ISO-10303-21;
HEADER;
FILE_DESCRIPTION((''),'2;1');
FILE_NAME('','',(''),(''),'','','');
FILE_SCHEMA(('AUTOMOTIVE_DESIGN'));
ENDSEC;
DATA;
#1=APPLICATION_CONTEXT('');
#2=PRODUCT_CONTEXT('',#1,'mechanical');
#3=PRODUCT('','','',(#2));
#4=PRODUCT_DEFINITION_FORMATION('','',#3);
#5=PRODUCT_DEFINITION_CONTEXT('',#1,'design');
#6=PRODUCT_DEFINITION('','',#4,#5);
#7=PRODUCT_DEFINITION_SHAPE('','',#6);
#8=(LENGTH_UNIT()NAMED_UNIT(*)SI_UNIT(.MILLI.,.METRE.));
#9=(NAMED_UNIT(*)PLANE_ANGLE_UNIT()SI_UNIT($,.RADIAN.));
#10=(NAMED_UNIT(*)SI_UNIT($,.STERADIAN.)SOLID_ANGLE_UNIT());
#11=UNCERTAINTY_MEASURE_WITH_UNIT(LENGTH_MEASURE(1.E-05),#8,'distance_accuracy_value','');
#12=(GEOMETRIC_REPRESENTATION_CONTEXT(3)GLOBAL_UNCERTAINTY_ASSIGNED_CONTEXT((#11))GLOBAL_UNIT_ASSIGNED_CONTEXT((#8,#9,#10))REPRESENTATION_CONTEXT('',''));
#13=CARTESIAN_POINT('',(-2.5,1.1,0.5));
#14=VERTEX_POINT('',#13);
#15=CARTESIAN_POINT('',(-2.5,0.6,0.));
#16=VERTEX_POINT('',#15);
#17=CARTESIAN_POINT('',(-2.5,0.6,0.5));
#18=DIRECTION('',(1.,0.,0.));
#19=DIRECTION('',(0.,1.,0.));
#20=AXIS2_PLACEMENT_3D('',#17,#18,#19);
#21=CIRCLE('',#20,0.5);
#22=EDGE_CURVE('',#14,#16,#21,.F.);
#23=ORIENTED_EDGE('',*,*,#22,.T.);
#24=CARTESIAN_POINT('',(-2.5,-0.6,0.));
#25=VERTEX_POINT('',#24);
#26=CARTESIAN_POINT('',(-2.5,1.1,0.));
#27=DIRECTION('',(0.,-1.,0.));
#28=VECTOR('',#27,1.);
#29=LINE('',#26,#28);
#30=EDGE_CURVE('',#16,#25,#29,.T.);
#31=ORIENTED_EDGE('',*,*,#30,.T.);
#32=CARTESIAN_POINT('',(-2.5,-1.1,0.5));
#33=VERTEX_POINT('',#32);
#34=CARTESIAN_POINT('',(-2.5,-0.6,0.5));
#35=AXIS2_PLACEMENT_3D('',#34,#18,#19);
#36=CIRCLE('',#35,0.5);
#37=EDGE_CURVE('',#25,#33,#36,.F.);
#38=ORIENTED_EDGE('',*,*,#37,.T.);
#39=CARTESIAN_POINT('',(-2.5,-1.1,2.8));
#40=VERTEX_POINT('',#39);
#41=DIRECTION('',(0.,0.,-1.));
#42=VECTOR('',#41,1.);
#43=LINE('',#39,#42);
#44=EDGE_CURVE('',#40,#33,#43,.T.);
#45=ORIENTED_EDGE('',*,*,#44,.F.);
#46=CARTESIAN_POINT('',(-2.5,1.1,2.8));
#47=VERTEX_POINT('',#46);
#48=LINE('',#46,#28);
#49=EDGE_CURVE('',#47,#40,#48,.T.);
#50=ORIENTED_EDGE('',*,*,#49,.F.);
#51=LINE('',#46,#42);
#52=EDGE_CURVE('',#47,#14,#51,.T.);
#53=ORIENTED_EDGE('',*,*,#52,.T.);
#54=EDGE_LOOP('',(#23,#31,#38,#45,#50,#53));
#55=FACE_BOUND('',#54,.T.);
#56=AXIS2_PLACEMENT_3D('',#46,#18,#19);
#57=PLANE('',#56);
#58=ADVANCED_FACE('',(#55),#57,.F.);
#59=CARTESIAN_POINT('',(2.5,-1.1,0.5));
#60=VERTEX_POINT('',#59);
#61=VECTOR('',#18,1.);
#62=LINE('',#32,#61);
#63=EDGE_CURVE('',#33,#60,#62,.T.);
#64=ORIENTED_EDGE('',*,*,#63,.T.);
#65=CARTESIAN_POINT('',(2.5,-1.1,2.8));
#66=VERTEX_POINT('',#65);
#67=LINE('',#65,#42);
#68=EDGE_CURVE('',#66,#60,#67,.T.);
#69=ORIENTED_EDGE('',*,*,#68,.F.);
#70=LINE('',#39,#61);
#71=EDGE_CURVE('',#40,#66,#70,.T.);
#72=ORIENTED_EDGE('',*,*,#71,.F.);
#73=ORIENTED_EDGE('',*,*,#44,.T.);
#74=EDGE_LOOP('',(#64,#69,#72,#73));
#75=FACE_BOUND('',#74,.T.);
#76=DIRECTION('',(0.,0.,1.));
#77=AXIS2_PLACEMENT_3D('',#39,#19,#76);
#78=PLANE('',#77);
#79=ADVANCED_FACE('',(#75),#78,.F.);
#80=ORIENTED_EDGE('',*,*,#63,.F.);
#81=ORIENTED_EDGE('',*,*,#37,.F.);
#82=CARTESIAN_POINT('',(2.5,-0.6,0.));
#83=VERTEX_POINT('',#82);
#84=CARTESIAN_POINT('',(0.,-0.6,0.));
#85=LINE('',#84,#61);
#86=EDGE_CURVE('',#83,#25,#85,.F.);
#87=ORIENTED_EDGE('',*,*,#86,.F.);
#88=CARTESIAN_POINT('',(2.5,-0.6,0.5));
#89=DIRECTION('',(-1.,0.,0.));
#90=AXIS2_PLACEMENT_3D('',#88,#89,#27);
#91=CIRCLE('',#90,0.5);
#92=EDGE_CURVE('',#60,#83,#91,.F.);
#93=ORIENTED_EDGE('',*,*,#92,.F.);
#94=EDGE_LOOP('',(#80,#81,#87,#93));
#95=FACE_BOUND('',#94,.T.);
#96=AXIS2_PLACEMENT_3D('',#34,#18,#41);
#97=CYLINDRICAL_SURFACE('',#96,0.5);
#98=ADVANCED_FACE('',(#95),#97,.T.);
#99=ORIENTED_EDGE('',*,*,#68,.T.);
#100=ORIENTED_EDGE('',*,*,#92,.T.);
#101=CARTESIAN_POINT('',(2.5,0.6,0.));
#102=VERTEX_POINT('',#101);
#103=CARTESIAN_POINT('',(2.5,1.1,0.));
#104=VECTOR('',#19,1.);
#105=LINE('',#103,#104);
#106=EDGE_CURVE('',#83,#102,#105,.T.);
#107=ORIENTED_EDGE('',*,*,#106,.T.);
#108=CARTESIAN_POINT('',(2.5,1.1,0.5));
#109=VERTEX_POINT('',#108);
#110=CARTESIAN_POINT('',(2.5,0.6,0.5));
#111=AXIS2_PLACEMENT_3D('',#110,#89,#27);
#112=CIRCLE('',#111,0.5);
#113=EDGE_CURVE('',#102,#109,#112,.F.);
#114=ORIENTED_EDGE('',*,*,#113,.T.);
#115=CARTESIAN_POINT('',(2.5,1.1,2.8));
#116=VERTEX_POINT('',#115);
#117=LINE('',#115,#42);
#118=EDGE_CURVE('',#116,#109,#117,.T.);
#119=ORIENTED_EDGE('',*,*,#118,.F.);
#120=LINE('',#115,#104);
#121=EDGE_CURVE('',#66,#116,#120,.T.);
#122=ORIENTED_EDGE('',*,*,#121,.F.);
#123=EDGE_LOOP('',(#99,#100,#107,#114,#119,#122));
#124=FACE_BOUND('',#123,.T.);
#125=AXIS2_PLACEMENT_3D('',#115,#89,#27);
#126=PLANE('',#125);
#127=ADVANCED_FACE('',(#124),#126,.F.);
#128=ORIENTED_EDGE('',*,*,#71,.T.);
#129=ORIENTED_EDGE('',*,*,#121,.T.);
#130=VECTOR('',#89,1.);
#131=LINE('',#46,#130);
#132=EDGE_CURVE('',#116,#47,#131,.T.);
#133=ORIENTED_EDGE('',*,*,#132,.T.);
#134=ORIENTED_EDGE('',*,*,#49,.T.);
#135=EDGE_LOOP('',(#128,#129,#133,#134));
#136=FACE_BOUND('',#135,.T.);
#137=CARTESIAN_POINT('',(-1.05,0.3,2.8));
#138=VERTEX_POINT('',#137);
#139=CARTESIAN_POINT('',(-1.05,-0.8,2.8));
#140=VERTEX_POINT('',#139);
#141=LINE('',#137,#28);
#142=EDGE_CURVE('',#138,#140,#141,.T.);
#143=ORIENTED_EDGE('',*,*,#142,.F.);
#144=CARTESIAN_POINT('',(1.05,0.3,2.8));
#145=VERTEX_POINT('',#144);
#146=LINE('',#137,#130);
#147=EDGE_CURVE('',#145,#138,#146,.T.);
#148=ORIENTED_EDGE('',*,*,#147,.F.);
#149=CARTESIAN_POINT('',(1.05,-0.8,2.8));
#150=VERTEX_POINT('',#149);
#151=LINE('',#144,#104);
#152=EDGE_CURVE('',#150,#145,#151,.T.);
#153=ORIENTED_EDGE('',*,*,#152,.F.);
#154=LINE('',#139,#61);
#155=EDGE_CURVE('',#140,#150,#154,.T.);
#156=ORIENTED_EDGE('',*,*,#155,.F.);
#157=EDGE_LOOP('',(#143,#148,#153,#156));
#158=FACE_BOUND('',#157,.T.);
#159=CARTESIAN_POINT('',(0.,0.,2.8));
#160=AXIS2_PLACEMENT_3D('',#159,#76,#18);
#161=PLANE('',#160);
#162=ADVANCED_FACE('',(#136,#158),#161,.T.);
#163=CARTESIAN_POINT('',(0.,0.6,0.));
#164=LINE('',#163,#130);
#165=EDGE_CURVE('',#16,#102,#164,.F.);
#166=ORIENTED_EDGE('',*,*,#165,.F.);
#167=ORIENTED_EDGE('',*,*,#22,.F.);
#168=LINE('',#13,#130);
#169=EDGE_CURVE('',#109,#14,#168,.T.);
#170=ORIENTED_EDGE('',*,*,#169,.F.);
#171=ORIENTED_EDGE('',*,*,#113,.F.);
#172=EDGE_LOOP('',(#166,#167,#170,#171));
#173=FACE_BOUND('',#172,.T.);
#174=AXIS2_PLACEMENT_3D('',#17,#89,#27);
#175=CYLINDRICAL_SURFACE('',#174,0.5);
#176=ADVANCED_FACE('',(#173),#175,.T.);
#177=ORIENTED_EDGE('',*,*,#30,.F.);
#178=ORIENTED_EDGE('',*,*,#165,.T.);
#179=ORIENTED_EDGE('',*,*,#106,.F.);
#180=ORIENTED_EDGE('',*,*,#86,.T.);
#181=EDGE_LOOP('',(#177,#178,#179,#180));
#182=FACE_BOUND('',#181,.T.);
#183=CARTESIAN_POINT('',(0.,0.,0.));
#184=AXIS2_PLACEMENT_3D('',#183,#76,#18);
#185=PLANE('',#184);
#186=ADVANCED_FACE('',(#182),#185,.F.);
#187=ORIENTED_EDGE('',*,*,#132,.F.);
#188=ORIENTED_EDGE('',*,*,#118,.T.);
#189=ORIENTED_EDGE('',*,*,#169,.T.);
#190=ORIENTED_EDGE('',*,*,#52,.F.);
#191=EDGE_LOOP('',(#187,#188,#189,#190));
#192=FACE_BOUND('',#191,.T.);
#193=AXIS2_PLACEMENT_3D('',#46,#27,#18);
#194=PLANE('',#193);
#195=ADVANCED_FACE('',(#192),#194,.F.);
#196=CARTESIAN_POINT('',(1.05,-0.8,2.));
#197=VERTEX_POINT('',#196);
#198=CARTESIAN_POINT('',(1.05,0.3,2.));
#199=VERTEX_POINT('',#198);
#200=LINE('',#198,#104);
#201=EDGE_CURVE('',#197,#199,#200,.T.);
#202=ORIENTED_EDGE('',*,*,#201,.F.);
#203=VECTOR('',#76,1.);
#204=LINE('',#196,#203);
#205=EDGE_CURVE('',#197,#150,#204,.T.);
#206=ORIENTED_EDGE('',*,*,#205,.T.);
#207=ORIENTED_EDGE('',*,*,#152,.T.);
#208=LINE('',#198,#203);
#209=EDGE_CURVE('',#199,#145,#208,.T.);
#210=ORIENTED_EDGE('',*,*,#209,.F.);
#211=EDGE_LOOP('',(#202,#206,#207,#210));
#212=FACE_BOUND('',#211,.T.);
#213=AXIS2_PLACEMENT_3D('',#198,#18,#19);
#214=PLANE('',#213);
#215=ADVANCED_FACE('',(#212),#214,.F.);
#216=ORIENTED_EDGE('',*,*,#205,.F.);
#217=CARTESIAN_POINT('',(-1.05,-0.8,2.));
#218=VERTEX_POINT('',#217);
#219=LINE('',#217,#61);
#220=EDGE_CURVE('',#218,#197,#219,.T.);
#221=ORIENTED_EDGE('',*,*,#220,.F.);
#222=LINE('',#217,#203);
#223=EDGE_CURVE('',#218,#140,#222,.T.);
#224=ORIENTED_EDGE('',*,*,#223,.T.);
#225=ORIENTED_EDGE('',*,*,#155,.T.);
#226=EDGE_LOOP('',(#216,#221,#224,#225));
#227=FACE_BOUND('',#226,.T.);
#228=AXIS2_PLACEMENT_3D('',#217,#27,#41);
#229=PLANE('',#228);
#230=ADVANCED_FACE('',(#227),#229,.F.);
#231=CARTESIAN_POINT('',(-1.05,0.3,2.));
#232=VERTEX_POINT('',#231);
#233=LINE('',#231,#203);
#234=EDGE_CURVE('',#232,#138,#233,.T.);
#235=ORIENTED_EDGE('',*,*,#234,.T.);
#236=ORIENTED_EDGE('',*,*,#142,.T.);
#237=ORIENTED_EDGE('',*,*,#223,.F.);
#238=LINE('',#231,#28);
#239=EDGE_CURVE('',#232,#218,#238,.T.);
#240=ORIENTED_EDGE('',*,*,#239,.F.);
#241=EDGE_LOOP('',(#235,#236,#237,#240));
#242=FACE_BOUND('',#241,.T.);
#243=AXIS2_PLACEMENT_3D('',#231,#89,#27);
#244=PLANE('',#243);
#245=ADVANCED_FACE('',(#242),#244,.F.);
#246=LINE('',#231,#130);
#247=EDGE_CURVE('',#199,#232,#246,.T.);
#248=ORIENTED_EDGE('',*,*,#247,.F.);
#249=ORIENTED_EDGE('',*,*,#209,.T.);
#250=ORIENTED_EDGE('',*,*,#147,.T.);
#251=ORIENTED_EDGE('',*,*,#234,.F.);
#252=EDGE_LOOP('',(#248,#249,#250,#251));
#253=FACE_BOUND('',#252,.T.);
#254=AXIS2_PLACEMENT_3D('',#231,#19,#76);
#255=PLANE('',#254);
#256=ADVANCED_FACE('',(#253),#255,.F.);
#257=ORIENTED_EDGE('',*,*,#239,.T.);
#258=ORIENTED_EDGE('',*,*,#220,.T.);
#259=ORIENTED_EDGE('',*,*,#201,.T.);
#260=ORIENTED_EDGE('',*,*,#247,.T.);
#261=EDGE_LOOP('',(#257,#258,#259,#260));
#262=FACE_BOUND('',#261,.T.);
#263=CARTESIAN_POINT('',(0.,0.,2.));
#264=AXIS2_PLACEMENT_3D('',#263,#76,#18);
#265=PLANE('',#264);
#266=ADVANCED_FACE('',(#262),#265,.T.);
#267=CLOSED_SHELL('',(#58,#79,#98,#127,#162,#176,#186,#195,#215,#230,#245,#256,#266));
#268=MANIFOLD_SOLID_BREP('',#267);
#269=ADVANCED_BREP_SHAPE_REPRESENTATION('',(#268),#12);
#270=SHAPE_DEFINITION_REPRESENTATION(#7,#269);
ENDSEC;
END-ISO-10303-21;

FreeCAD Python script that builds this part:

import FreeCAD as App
import Part
import Sketcher
from FreeCAD import Vector


def edges_at(feature, points):
    """Names of the edges that pass closest to the given points."""
    edges = feature.Shape.Edges
    near = lambda p: min(range(len(edges)), key=lambda i: edges[i].distToShape(Part.Vertex(*p))[0])
    return sorted({f"Edge{near(p) + 1}" for p in points})


def add_polygon(sketch, points):
    """Adds a closed chain of lines whose ends are joined by coincident constraints."""
    first, n = sketch.GeometryCount, len(points)
    for a, b in zip(points, points[1:] + points[:1]):
        sketch.addGeometry(Part.LineSegment(App.Vector(*a, 0), App.Vector(*b, 0)), False)
    for i in range(n):
        sketch.addConstraint(Sketcher.Constraint("Coincident", first + i, 2, first + (i + 1) % n, 1))

doc = App.newDocument("Part")
body = doc.addObject("PartDesign::Body", "Body")

sketch1 = doc.addObject("Sketcher::SketchObject", "Sketch")
body.addObject(sketch1)
sketch1.AttachmentSupport = (doc.XY_Plane, [""])
sketch1.MapMode = "FlatFace"
add_polygon(sketch1, [(-2.5, 1.1), (-2.5, -1.1), (2.5, -1.1), (2.5, 1.1)])
sketch1.addConstraint(Sketcher.Constraint("Vertical", 0))
sketch1.addConstraint(Sketcher.Constraint("Horizontal", 1))
sketch1.addConstraint(Sketcher.Constraint("Vertical", 2))
sketch1.addConstraint(Sketcher.Constraint("Horizontal", 3))
sketch1.addConstraint(Sketcher.Constraint("Symmetric", 0, 2, 2, 2, -1, 1))
sketch1.addConstraint(Sketcher.Constraint("DistanceX", 1, 1, 1, 2, 5.0))
sketch1.addConstraint(Sketcher.Constraint("DistanceY", 0, 2, 0, 1, 2.2))
pad1 = doc.addObject("PartDesign::Pad", "Pad")
body.addObject(pad1)
pad1.Profile = sketch1
pad1.Length = 2.8

sketch2 = doc.addObject("Sketcher::SketchObject", "Sketch001")
body.addObject(sketch2)
sketch2.AttachmentSupport = (doc.XY_Plane, [""])
sketch2.MapMode = "FlatFace"
sketch2.AttachmentOffset = App.Placement(Vector(0, 0, 2.8), App.Rotation())
add_polygon(sketch2, [(-1.1, 0.3), (-1.1, -0.8), (1.1, -0.8), (1.1, 0.3)])
sketch2.addConstraint(Sketcher.Constraint("Vertical", 0))
sketch2.addConstraint(Sketcher.Constraint("Horizontal", 1))
sketch2.addConstraint(Sketcher.Constraint("Vertical", 2))
sketch2.addConstraint(Sketcher.Constraint("Horizontal", 3))
sketch2.addConstraint(Sketcher.Constraint("DistanceX", 1, 1, 1, 2, 2.1))
sketch2.addConstraint(Sketcher.Constraint("DistanceY", 0, 2, 0, 1, 1.1))
sketch2.addConstraint(Sketcher.Constraint("DistanceY", 0, 2, -1, 1, 0.8))
sketch2.addConstraint(Sketcher.Constraint("DistanceX", 0, 2, -1, 1, 1.05))
pocket1 = doc.addObject("PartDesign::Pocket", "Pocket")
body.addObject(pocket1)
pocket1.Profile = sketch2
pocket1.Length = 0.8
doc.recompute()

fillet = doc.addObject("PartDesign::Fillet", "Fillet")
body.addObject(fillet)
fillet.Base = (pocket1, edges_at(pocket1, [(0, -1.1, 0), (0, 1.1, 0)]))
fillet.Radius = 0.5

doc.recompute()
